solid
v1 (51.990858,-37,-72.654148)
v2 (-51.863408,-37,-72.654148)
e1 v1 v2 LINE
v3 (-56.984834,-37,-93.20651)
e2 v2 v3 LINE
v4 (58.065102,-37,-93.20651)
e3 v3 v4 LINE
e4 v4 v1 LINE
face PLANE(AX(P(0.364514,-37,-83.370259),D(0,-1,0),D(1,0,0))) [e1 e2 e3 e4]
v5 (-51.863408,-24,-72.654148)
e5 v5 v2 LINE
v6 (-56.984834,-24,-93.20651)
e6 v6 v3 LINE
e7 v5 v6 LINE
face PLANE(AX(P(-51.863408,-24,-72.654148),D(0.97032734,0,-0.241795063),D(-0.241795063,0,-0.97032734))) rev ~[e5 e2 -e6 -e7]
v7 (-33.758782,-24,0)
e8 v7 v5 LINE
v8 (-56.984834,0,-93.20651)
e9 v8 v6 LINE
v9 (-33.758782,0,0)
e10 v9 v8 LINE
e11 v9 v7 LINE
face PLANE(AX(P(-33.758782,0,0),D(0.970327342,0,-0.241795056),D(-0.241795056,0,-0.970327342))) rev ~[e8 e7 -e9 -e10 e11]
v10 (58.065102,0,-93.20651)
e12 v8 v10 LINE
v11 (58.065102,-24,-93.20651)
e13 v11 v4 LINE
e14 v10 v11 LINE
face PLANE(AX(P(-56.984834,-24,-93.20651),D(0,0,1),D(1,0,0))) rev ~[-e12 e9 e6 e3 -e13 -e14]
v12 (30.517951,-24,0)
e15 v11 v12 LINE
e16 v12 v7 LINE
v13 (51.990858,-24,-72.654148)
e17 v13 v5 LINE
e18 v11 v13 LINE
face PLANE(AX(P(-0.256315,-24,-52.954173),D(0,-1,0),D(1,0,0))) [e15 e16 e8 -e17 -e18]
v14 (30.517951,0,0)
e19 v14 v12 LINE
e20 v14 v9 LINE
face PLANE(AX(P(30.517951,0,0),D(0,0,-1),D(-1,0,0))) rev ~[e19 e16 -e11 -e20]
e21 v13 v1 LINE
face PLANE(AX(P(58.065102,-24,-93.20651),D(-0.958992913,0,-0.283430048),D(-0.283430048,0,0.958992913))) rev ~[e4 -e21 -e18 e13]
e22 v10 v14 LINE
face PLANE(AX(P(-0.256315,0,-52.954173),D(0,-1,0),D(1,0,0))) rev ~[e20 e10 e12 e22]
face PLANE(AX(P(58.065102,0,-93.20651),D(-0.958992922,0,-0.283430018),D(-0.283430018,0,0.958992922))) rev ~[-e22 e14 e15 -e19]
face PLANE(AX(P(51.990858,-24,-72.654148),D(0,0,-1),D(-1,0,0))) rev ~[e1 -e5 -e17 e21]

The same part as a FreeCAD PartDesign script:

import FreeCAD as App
import Part
import Sketcher

doc = App.newDocument("Part")
params = doc.addObject("Spreadsheet::Sheet", "Params")
for row, (alias, value) in enumerate([
    ("pad1_length", "24 mm"),
    ("pad2_length", "13 mm"),
], start=1):
    params.set(f"A{row}", alias)
    params.set(f"B{row}", "=" + value)
    params.setAlias(f"B{row}", alias)

body = doc.addObject("PartDesign::Body", "Body")

# Sketch on XZ plane
sketch1 = body.newObject("Sketcher::SketchObject", "Sketch")
sketch1.AttachmentSupport = (doc.getObject("XZ_Plane"), [""])
sketch1.MapMode = "FlatFace"
sketch1.addGeometry([
    Part.LineSegment(App.Vector(31, 0, 0), App.Vector(-34, 0, 0)),
    Part.LineSegment(App.Vector(-34, 0, 0), App.Vector(-57, -93, 0)),
    Part.LineSegment(App.Vector(-57, -93, 0), App.Vector(58, -93, 0)),
    Part.LineSegment(App.Vector(58, -93, 0), App.Vector(31, 0, 0)),
], False)
sketch1.addConstraint([
    Sketcher.Constraint("Coincident", 0, 2, 1, 1),
    Sketcher.Constraint("Coincident", 1, 2, 2, 1),
    Sketcher.Constraint("Coincident", 2, 2, 3, 1),
    Sketcher.Constraint("Coincident", 3, 2, 0, 1),
    Sketcher.Constraint("Horizontal", 0),
    Sketcher.Constraint("Horizontal", 2),
    Sketcher.Constraint("PointOnObject", 0, 2, -1),
    Sketcher.Constraint("Distance", 1, 96.05677),
    Sketcher.Constraint("DistanceX", 0, 2, 0, 1, 64.276733),
    Sketcher.Constraint("DistanceX", 2, 1, 2, 2, 115.049936),
    Sketcher.Constraint("DistanceX", 0, 2, -1, 1, 33.758782),
    Sketcher.Constraint("DistanceY", 1, 2, -1, 1, 93.20651),
])
pad1 = body.newObject("PartDesign::Pad", "Pad")
pad1.Profile = sketch1
pad1.setExpression("Length", "Params.pad1_length")

# Sketch on XZ plane
sketch2 = body.newObject("Sketcher::SketchObject", "Sketch001")
sketch2.AttachmentSupport = (doc.getObject("XZ_Plane"), [""])
sketch2.MapMode = "FlatFace"
sketch2.AttachmentOffset = App.Placement(App.Vector(0, 0, 24), App.Rotation())
sketch2.addGeometry([
    Part.LineSegment(App.Vector(-52, -73, 0), App.Vector(-57, -93, 0)),
    Part.LineSegment(App.Vector(-57, -93, 0), App.Vector(58, -93, 0)),
    Part.LineSegment(App.Vector(58, -93, 0), App.Vector(52, -73, 0)),
    Part.LineSegment(App.Vector(52, -73, 0), App.Vector(-52, -73, 0)),
], False)
sketch2.addConstraint([
    Sketcher.Constraint("Coincident", 0, 2, 1, 1),
    Sketcher.Constraint("Coincident", 1, 2, 2, 1),
    Sketcher.Constraint("Coincident", 2, 2, 3, 1),
    Sketcher.Constraint("Coincident", 3, 2, 0, 1),
    Sketcher.Constraint("Horizontal", 1),
    Sketcher.Constraint("Horizontal", 3),
    Sketcher.Constraint("DistanceX", 1, 1, 1, 2, 115.049936),
    Sketcher.Constraint("DistanceX", 3, 2, 3, 1, 103.854266),
    Sketcher.Constraint("DistanceY", 0, 2, -1, 1, 93.20651),
    Sketcher.Constraint("DistanceX", -1, 1, 2, 2, 51.990858),
    Sketcher.Constraint("DistanceY", 2, 2, -1, 1, 72.654148),
    Sketcher.Constraint("DistanceX", 3, 2, 1, 2, 109.92851),
])
pad2 = body.newObject("PartDesign::Pad", "Pad001")
pad2.Profile = sketch2
pad2.setExpression("Length", "Params.pad2_length")

doc.recompute()
